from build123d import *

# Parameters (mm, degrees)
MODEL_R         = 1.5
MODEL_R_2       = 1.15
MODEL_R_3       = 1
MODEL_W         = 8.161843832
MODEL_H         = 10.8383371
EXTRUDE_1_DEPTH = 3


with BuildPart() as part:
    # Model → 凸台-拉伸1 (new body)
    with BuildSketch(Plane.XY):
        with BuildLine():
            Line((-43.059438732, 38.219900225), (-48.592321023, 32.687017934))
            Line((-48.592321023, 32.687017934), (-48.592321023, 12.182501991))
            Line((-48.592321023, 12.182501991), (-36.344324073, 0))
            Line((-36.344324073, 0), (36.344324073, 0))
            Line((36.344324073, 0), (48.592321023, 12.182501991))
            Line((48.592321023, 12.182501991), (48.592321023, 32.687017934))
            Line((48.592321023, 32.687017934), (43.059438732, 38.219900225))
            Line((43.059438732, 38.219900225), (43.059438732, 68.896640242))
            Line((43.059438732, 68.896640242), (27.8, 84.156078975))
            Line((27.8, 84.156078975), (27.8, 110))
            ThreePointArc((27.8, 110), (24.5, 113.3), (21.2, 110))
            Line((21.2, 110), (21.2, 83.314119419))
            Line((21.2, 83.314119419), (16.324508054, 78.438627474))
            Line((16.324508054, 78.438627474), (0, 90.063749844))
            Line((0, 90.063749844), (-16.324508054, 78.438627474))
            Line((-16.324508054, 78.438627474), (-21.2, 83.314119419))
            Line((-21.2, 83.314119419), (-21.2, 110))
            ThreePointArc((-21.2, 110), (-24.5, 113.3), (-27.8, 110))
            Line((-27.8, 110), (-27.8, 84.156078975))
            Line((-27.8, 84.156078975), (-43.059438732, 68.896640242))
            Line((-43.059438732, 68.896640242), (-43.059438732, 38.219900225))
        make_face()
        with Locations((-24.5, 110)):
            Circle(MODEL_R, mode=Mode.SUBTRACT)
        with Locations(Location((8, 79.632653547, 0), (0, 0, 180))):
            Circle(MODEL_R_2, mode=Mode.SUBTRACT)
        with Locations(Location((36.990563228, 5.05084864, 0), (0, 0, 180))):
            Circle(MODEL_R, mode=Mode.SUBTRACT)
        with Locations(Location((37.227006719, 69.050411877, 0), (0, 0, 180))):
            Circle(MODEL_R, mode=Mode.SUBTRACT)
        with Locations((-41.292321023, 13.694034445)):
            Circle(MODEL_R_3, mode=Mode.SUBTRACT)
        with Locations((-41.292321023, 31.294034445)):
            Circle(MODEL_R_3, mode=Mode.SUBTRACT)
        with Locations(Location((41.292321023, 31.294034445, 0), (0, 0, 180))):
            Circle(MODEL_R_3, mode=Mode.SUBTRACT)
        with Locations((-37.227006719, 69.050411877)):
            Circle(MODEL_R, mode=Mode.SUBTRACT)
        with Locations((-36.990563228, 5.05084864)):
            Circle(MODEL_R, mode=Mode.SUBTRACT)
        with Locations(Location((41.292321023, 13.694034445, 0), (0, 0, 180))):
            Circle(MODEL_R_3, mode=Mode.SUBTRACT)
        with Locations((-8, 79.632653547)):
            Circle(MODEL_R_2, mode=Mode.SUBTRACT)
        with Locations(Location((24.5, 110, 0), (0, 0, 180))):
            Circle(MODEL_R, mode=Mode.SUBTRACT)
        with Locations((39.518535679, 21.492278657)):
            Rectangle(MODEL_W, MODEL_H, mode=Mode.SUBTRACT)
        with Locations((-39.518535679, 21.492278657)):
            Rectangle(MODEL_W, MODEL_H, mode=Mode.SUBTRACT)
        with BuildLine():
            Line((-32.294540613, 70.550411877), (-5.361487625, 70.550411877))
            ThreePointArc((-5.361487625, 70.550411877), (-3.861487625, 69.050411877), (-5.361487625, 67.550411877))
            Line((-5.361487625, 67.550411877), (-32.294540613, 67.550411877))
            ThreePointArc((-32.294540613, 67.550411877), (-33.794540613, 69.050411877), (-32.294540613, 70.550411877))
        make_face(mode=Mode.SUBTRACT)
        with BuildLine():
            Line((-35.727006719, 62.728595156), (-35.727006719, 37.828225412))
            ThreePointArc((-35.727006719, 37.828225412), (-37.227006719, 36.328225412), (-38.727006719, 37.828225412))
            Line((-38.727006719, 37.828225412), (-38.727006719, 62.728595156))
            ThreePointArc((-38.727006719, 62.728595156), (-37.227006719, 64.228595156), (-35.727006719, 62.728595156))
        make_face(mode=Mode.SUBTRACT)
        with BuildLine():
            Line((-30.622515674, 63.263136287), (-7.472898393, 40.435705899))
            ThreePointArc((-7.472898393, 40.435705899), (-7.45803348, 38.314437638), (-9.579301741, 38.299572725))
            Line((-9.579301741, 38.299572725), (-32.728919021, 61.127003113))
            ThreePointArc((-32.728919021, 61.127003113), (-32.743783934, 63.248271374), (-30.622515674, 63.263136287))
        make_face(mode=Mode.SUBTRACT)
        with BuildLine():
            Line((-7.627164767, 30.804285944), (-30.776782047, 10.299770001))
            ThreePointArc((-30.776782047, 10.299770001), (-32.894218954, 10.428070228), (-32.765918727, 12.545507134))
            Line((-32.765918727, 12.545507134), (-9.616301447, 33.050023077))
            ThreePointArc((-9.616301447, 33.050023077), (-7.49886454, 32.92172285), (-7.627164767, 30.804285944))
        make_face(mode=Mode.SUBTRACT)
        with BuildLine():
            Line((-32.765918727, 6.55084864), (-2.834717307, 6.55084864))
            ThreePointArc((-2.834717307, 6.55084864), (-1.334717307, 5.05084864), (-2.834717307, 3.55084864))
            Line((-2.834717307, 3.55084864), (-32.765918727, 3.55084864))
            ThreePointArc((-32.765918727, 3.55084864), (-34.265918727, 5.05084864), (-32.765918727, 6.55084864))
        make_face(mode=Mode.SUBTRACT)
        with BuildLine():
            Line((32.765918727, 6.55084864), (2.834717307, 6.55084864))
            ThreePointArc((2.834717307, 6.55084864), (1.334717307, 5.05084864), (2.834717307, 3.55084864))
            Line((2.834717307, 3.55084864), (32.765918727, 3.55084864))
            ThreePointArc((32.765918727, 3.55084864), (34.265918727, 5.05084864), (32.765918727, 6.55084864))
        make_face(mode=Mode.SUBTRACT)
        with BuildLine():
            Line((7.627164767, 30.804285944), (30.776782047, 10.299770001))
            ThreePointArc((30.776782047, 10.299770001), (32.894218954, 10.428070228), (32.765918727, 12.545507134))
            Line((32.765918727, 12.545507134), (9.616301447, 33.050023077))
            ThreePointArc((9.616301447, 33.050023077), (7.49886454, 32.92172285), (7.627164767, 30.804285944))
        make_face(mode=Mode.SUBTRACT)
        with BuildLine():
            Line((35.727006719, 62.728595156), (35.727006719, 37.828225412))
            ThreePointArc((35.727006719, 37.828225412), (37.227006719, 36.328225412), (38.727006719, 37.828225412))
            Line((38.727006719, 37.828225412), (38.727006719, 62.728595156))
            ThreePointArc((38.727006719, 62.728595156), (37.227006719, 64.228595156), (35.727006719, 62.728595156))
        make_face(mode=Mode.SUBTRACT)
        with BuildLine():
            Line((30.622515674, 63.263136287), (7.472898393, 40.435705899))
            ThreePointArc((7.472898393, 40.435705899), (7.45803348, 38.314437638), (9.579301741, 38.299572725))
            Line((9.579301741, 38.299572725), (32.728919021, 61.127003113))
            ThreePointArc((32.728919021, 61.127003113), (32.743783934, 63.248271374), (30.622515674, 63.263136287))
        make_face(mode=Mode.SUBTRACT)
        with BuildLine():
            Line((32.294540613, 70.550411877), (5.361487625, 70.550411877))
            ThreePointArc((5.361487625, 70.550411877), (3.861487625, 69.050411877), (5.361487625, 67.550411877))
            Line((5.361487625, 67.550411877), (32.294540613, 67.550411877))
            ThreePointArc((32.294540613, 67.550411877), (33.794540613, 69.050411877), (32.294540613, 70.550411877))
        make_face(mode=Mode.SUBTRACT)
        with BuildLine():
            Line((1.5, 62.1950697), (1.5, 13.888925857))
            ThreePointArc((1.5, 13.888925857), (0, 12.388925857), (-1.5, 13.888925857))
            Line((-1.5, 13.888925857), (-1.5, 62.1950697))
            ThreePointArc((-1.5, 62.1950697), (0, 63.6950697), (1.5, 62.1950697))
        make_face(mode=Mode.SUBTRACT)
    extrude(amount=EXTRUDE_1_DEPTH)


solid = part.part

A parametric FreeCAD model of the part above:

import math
import FreeCAD as App
import Part
import Sketcher
from FreeCAD import Vector
Q = App.Units.Quantity

doc = App.newDocument("Part")
params = doc.addObject("Spreadsheet::Sheet", "Params")
for row, (alias, value) in enumerate([
    ("sketch1_diameter", "3 mm"),
    ("sketch1_diameter2", "2 mm"),
    ("sketch1_diameter3", "2 mm"),
    ("sketch1_diameter4", "3 mm"),
    ("sketch1_diameter5", "2 mm"),
    ("pad1_length", "3 mm"),
], start=1):
    params.set(f"A{row}", alias)
    params.set(f"B{row}", "=" + value)
    params.setAlias(f"B{row}", alias)

body = doc.addObject("PartDesign::Body", "Body")

sketch1 = body.newObject("Sketcher::SketchObject", "Sketch")
sketch1.AttachmentSupport = (doc.getObject("XY_Plane"), [""])
sketch1.MapMode = "FlatFace"
sketch1.addGeometry(Part.LineSegment(Vector(-43.059439, 38.2199, 0), Vector(-48.592321, 32.687018, 0)), False)
sketch1.addGeometry(Part.LineSegment(Vector(-48.592321, 32.687018, 0), Vector(-48.592321, 12.182502, 0)), False)
sketch1.addGeometry(Part.LineSegment(Vector(-48.592321, 12.182502, 0), Vector(-36.344324, 0, 0)), False)
sketch1.addGeometry(Part.LineSegment(Vector(-36.344324, 0, 0), Vector(36.344324, 0, 0)), False)
sketch1.addGeometry(Part.LineSegment(Vector(36.344324, 0, 0), Vector(48.592321, 12.182502, 0)), False)
sketch1.addGeometry(Part.LineSegment(Vector(48.592321, 12.182502, 0), Vector(48.592321, 32.687018, 0)), False)
sketch1.addGeometry(Part.LineSegment(Vector(48.592321, 32.687018, 0), Vector(43.059439, 38.2199, 0)), False)
sketch1.addGeometry(Part.LineSegment(Vector(43.059439, 38.2199, 0), Vector(43.059439, 68.89664, 0)), False)
sketch1.addGeometry(Part.LineSegment(Vector(43.059439, 68.89664, 0), Vector(27.8, 84.156079, 0)), False)
sketch1.addGeometry(Part.LineSegment(Vector(27.8, 84.156079, 0), Vector(27.8, 110, 0)), False)
sketch1.addGeometry(Part.ArcOfCircle(Part.Circle(Vector(24.5, 110, 0), Vector(0, 0, 1), 3.3), math.radians(0), math.radians(180)), False)
sketch1.addGeometry(Part.LineSegment(Vector(21.2, 110, 0), Vector(21.2, 83.314119, 0)), False)
sketch1.addGeometry(Part.LineSegment(Vector(21.2, 83.314119, 0), Vector(16.324508, 78.438627, 0)), False)
sketch1.addGeometry(Part.LineSegment(Vector(16.324508, 78.438627, 0), Vector(0, 90.06375, 0)), False)
sketch1.addGeometry(Part.LineSegment(Vector(0, 90.06375, 0), Vector(-16.324508, 78.438627, 0)), False)
sketch1.addGeometry(Part.LineSegment(Vector(-16.324508, 78.438627, 0), Vector(-21.2, 83.314119, 0)), False)
sketch1.addGeometry(Part.LineSegment(Vector(-21.2, 83.314119, 0), Vector(-21.2, 110, 0)), False)
sketch1.addGeometry(Part.ArcOfCircle(Part.Circle(Vector(-24.5, 110, 0), Vector(0, 0, 1), 3.3), math.radians(0), math.radians(180)), False)
sketch1.addGeometry(Part.LineSegment(Vector(-27.8, 110, 0), Vector(-27.8, 84.156079, 0)), False)
sketch1.addGeometry(Part.LineSegment(Vector(-27.8, 84.156079, 0), Vector(-43.059439, 68.89664, 0)), False)
sketch1.addGeometry(Part.LineSegment(Vector(-43.059439, 68.89664, 0), Vector(-43.059439, 38.2199, 0)), False)
sketch1.addGeometry(Part.Circle(Vector(-36.990563, 5.050849, 0), Vector(0, 0, 1), 1.5), False)
sketch1.addGeometry(Part.Circle(Vector(-41.292321, 13.694034, 0), Vector(0, 0, 1), 1), False)
sketch1.addGeometry(Part.LineSegment(Vector(-35.437614, 16.07311, 0), Vector(-43.599458, 16.07311, 0)), False)
sketch1.addGeometry(Part.LineSegment(Vector(-43.599458, 16.07311, 0), Vector(-43.599458, 26.911447, 0)), False)
sketch1.addGeometry(Part.LineSegment(Vector(-43.599458, 26.911447, 0), Vector(-35.437614, 26.911447, 0)), False)
sketch1.addGeometry(Part.LineSegment(Vector(-35.437614, 26.911447, 0), Vector(-35.437614, 16.07311, 0)), False)
sketch1.addGeometry(Part.ArcOfCircle(Part.Circle(Vector(-32.765919, 5.050849, 0), Vector(0, 0, 1), 1.5), math.radians(90), math.radians(270)), False)
sketch1.addGeometry(Part.LineSegment(Vector(-32.765919, 6.550849, 0), Vector(-2.834717, 6.550849, 0)), False)
sketch1.addGeometry(Part.ArcOfCircle(Part.Circle(Vector(-2.834717, 5.050849, 0), Vector(0, 0, 1), 1.5), math.radians(-90), math.radians(90)), False)
sketch1.addGeometry(Part.LineSegment(Vector(-2.834717, 3.550849, 0), Vector(-32.765919, 3.550849, 0)), False)
sketch1.addGeometry(Part.ArcOfCircle(Part.Circle(Vector(-8.621733, 31.927155, 0), Vector(0, 0, 1), 1.5), math.radians(-48.46744), math.radians(131.53256)), False)
sketch1.addGeometry(Part.LineSegment(Vector(-7.627165, 30.804286, 0), Vector(-30.776782, 10.29977, 0)), False)
sketch1.addGeometry(Part.ArcOfCircle(Part.Circle(Vector(-31.77135, 11.422639, 0), Vector(0, 0, 1), 1.5), math.radians(131.53256), math.radians(311.53256)), False)
sketch1.addGeometry(Part.LineSegment(Vector(-32.765919, 12.545507, 0), Vector(-9.616301, 33.050023, 0)), False)
sketch1.addGeometry(Part.Circle(Vector(-41.292321, 31.294034, 0), Vector(0, 0, 1), 1), False)
sketch1.addGeometry(Part.ArcOfCircle(Part.Circle(Vector(-37.227007, 62.728595, 0), Vector(0, 0, 1), 1.5), math.radians(0), math.radians(180)), False)
sketch1.addGeometry(Part.LineSegment(Vector(-35.727007, 62.728595, 0), Vector(-35.727007, 37.828225, 0)), False)
sketch1.addGeometry(Part.ArcOfCircle(Part.Circle(Vector(-37.227007, 37.828225, 0), Vector(0, 0, 1), 1.5), math.radians(180), math.radians(360)), False)
sketch1.addGeometry(Part.LineSegment(Vector(-38.727007, 37.828225, 0), Vector(-38.727007, 62.728595, 0)), False)
sketch1.addGeometry(Part.ArcOfCircle(Part.Circle(Vector(-31.675717, 62.19507, 0), Vector(0, 0, 1), 1.5), math.radians(45.401497), math.radians(225.401497)), False)
sketch1.addGeometry(Part.LineSegment(Vector(-30.622516, 63.263136, 0), Vector(-7.472898, 40.435706, 0)), False)
sketch1.addGeometry(Part.ArcOfCircle(Part.Circle(Vector(-8.5261, 39.367639, 0), Vector(0, 0, 1), 1.5), math.radians(-134.598503), math.radians(45.401497)), False)
sketch1.addGeometry(Part.LineSegment(Vector(-9.579302, 38.299573, 0), Vector(-32.728919, 61.127003, 0)), False)
sketch1.addGeometry(Part.LineSegment(Vector(2.834717, 6.550849, 0), Vector(32.765919, 6.550849, 0)), False)
sketch1.addGeometry(Part.ArcOfCircle(Part.Circle(Vector(32.765919, 5.050849, 0), Vector(0, 0, 1), 1.5), math.radians(-90), math.radians(90)), False)
sketch1.addGeometry(Part.LineSegment(Vector(32.765919, 3.550849, 0), Vector(2.834717, 3.550849, 0)), False)
sketch1.addGeometry(Part.ArcOfCircle(Part.Circle(Vector(2.834717, 5.050849, 0), Vector(0, 0, 1), 1.5), math.radians(90), math.radians(270)), False)
sketch1.addGeometry(Part.LineSegment(Vector(30.776782, 10.29977, 0), Vector(7.627165, 30.804286, 0)), False)
sketch1.addGeometry(Part.ArcOfCircle(Part.Circle(Vector(8.621733, 31.927155, 0), Vector(0, 0, 1), 1.5), math.radians(48.46744), math.radians(228.46744)), False)
sketch1.addGeometry(Part.LineSegment(Vector(9.616301, 33.050023, 0), Vector(32.765919, 12.545507, 0)), False)
sketch1.addGeometry(Part.ArcOfCircle(Part.Circle(Vector(31.77135, 11.422639, 0), Vector(0, 0, 1), 1.5), math.radians(-131.53256), math.radians(48.46744)), False)
sketch1.addGeometry(Part.Circle(Vector(36.990563, 5.050849, 0), Vector(0, 0, 1), 1.5), False)
sketch1.addGeometry(Part.Circle(Vector(41.292321, 13.694034, 0), Vector(0, 0, 1), 1), False)
sketch1.addGeometry(Part.LineSegment(Vector(43.599458, 16.07311, 0), Vector(35.437614, 16.07311, 0)), False)
sketch1.addGeometry(Part.LineSegment(Vector(35.437614, 16.07311, 0), Vector(35.437614, 26.911447, 0)), False)
sketch1.addGeometry(Part.LineSegment(Vector(35.437614, 26.911447, 0), Vector(43.599458, 26.911447, 0)), False)
sketch1.addGeometry(Part.LineSegment(Vector(43.599458, 26.911447, 0), Vector(43.599458, 16.07311, 0)), False)
sketch1.addGeometry(Part.ArcOfCircle(Part.Circle(Vector(0, 62.19507, 0), Vector(0, 0, 1), 1.5), math.radians(0), math.radians(180)), False)
sketch1.addGeometry(Part.LineSegment(Vector(1.5, 62.19507, 0), Vector(1.5, 13.888926, 0)), False)
sketch1.addGeometry(Part.ArcOfCircle(Part.Circle(Vector(0, 13.888926, 0), Vector(0, 0, 1), 1.5), math.radians(180), math.radians(360)), False)
sketch1.addGeometry(Part.LineSegment(Vector(-1.5, 13.888926, 0), Vector(-1.5, 62.19507, 0)), False)
sketch1.addGeometry(Part.LineSegment(Vector(7.472898, 40.435706, 0), Vector(30.622516, 63.263136, 0)), False)
sketch1.addGeometry(Part.ArcOfCircle(Part.Circle(Vector(31.675717, 62.19507, 0), Vector(0, 0, 1), 1.5), math.radians(-45.401497), math.radians(134.598503)), False)
sketch1.addGeometry(Part.LineSegment(Vector(32.728919, 61.127003, 0), Vector(9.579302, 38.299573, 0)), False)
sketch1.addGeometry(Part.ArcOfCircle(Part.Circle(Vector(8.5261, 39.367639, 0), Vector(0, 0, 1), 1.5), math.radians(134.598503), math.radians(314.598503)), False)
sketch1.addGeometry(Part.Circle(Vector(41.292321, 31.294034, 0), Vector(0, 0, 1), 1), False)
sketch1.addGeometry(Part.LineSegment(Vector(35.727007, 37.828225, 0), Vector(35.727007, 62.728595, 0)), False)
sketch1.addGeometry(Part.ArcOfCircle(Part.Circle(Vector(37.227007, 62.728595, 0), Vector(0, 0, 1), 1.5), math.radians(0), math.radians(180)), False)
sketch1.addGeometry(Part.LineSegment(Vector(38.727007, 62.728595, 0), Vector(38.727007, 37.828225, 0)), False)
sketch1.addGeometry(Part.ArcOfCircle(Part.Circle(Vector(37.227007, 37.828225, 0), Vector(0, 0, 1), 1.5), math.radians(180), math.radians(360)), False)
sketch1.addGeometry(Part.Circle(Vector(-37.227007, 69.050412, 0), Vector(0, 0, 1), 1.5), False)
sketch1.addGeometry(Part.ArcOfCircle(Part.Circle(Vector(-32.294541, 69.050412, 0), Vector(0, 0, 1), 1.5), math.radians(90), math.radians(270)), False)
sketch1.addGeometry(Part.LineSegment(Vector(-32.294541, 70.550412, 0), Vector(-5.361488, 70.550412, 0)), False)
sketch1.addGeometry(Part.ArcOfCircle(Part.Circle(Vector(-5.361488, 69.050412, 0), Vector(0, 0, 1), 1.5), math.radians(-90), math.radians(90)), False)
sketch1.addGeometry(Part.LineSegment(Vector(-5.361488, 67.550412, 0), Vector(-32.294541, 67.550412, 0)), False)
sketch1.addGeometry(Part.Circle(Vector(-8, 79.632654, 0), Vector(0, 0, 1), 1.15), False)
sketch1.addGeometry(Part.Circle(Vector(-24.5, 110, 0), Vector(0, 0, 1), 1.5), False)
sketch1.addGeometry(Part.LineSegment(Vector(5.361488, 70.550412, 0), Vector(32.294541, 70.550412, 0)), False)
sketch1.addGeometry(Part.ArcOfCircle(Part.Circle(Vector(32.294541, 69.050412, 0), Vector(0, 0, 1), 1.5), math.radians(-90), math.radians(90)), False)
sketch1.addGeometry(Part.LineSegment(Vector(32.294541, 67.550412, 0), Vector(5.361488, 67.550412, 0)), False)
sketch1.addGeometry(Part.ArcOfCircle(Part.Circle(Vector(5.361488, 69.050412, 0), Vector(0, 0, 1), 1.5), math.radians(90), math.radians(270)), False)
sketch1.addGeometry(Part.Circle(Vector(8, 79.632654, 0), Vector(0, 0, 1), 1.15), False)
sketch1.addGeometry(Part.Circle(Vector(37.227007, 69.050412, 0), Vector(0, 0, 1), 1.5), False)
sketch1.addGeometry(Part.Circle(Vector(24.5, 110, 0), Vector(0, 0, 1), 1.5), False)
sketch1.addConstraint(Sketcher.Constraint("Coincident", 0, 2, 1, 1))
sketch1.addConstraint(Sketcher.Constraint("Coincident", 1, 2, 2, 1))
sketch1.addConstraint(Sketcher.Constraint("Coincident", 2, 2, 3, 1))
sketch1.addConstraint(Sketcher.Constraint("Coincident", 3, 2, 4, 1))
sketch1.addConstraint(Sketcher.Constraint("Coincident", 4, 2, 5, 1))
sketch1.addConstraint(Sketcher.Constraint("Coincident", 5, 2, 6, 1))
sketch1.addConstraint(Sketcher.Constraint("Coincident", 6, 2, 7, 1))
sketch1.addConstraint(Sketcher.Constraint("Coincident", 7, 2, 8, 1))
sketch1.addConstraint(Sketcher.Constraint("Coincident", 8, 2, 9, 1))
sketch1.addConstraint(Sketcher.Constraint("Coincident", 9, 2, 10, 1))
sketch1.addConstraint(Sketcher.Constraint("Coincident", 10, 2, 11, 1))
sketch1.addConstraint(Sketcher.Constraint("Coincident", 11, 2, 12, 1))
sketch1.addConstraint(Sketcher.Constraint("Coincident", 12, 2, 13, 1))
sketch1.addConstraint(Sketcher.Constraint("Coincident", 13, 2, 14, 1))
sketch1.addConstraint(Sketcher.Constraint("Coincident", 14, 2, 15, 1))
sketch1.addConstraint(Sketcher.Constraint("Coincident", 15, 2, 16, 1))
sketch1.addConstraint(Sketcher.Constraint("Coincident", 16, 2, 17, 1))
sketch1.addConstraint(Sketcher.Constraint("Coincident", 17, 2, 18, 1))
sketch1.addConstraint(Sketcher.Constraint("Coincident", 18, 2, 19, 1))
sketch1.addConstraint(Sketcher.Constraint("Coincident", 19, 2, 20, 1))
sketch1.addConstraint(Sketcher.Constraint("Coincident", 20, 2, 0, 1))
sketch1.addConstraint(Sketcher.Constraint("Coincident", 23, 2, 24, 1))
sketch1.addConstraint(Sketcher.Constraint("Coincident", 24, 2, 25, 1))
sketch1.addConstraint(Sketcher.Constraint("Coincident", 25, 2, 26, 1))
sketch1.addConstraint(Sketcher.Constraint("Coincident", 26, 2, 23, 1))
sketch1.addConstraint(Sketcher.Constraint("Coincident", 27, 1, 28, 1))
sketch1.addConstraint(Sketcher.Constraint("Coincident", 28, 2, 29, 2))
sketch1.addConstraint(Sketcher.Constraint("Coincident", 29, 1, 30, 1))
sketch1.addConstraint(Sketcher.Constraint("Coincident", 30, 2, 27, 2))
sketch1.addConstraint(Sketcher.Constraint("Coincident", 31, 1, 32, 1))
sketch1.addConstraint(Sketcher.Constraint("Coincident", 32, 2, 33, 2))
sketch1.addConstraint(Sketcher.Constraint("Coincident", 33, 1, 34, 1))
sketch1.addConstraint(Sketcher.Constraint("Coincident", 34, 2, 31, 2))
sketch1.addConstraint(Sketcher.Constraint("Coincident", 36, 1, 37, 1))
sketch1.addConstraint(Sketcher.Constraint("Coincident", 37, 2, 38, 2))
sketch1.addConstraint(Sketcher.Constraint("Coincident", 38, 1, 39, 1))
sketch1.addConstraint(Sketcher.Constraint("Coincident", 39, 2, 36, 2))
sketch1.addConstraint(Sketcher.Constraint("Coincident", 40, 1, 41, 1))
sketch1.addConstraint(Sketcher.Constraint("Coincident", 41, 2, 42, 2))
sketch1.addConstraint(Sketcher.Constraint("Coincident", 42, 1, 43, 1))
sketch1.addConstraint(Sketcher.Constraint("Coincident", 43, 2, 40, 2))
sketch1.addConstraint(Sketcher.Constraint("Coincident", 44, 2, 45, 2))
sketch1.addConstraint(Sketcher.Constraint("Coincident", 45, 1, 46, 1))
sketch1.addConstraint(Sketcher.Constraint("Coincident", 46, 2, 47, 2))
sketch1.addConstraint(Sketcher.Constraint("Coincident", 47, 1, 44, 1))
sketch1.addConstraint(Sketcher.Constraint("Coincident", 48, 2, 49, 2))
sketch1.addConstraint(Sketcher.Constraint("Coincident", 49, 1, 50, 1))
sketch1.addConstraint(Sketcher.Constraint("Coincident", 50, 2, 51, 2))
sketch1.addConstraint(Sketcher.Constraint("Coincident", 51, 1, 48, 1))
sketch1.addConstraint(Sketcher.Constraint("Coincident", 54, 2, 55, 1))
sketch1.addConstraint(Sketcher.Constraint("Coincident", 55, 2, 56, 1))
sketch1.addConstraint(Sketcher.Constraint("Coincident", 56, 2, 57, 1))
sketch1.addConstraint(Sketcher.Constraint("Coincident", 57, 2, 54, 1))
sketch1.addConstraint(Sketcher.Constraint("Coincident", 58, 1, 59, 1))
sketch1.addConstraint(Sketcher.Constraint("Coincident", 59, 2, 60, 2))
sketch1.addConstraint(Sketcher.Constraint("Coincident", 60, 1, 61, 1))
sketch1.addConstraint(Sketcher.Constraint("Coincident", 61, 2, 58, 2))
sketch1.addConstraint(Sketcher.Constraint("Coincident", 62, 2, 63, 2))
sketch1.addConstraint(Sketcher.Constraint("Coincident", 63, 1, 64, 1))
sketch1.addConstraint(Sketcher.Constraint("Coincident", 64, 2, 65, 2))
sketch1.addConstraint(Sketcher.Constraint("Coincident", 65, 1, 62, 1))
sketch1.addConstraint(Sketcher.Constraint("Coincident", 67, 2, 68, 2))
sketch1.addConstraint(Sketcher.Constraint("Coincident", 68, 1, 69, 1))
sketch1.addConstraint(Sketcher.Constraint("Coincident", 69, 2, 70, 2))
sketch1.addConstraint(Sketcher.Constraint("Coincident", 70, 1, 67, 1))
sketch1.addConstraint(Sketcher.Constraint("Coincident", 72, 1, 73, 1))
sketch1.addConstraint(Sketcher.Constraint("Coincident", 73, 2, 74, 2))
sketch1.addConstraint(Sketcher.Constraint("Coincident", 74, 1, 75, 1))
sketch1.addConstraint(Sketcher.Constraint("Coincident", 75, 2, 72, 2))
sketch1.addConstraint(Sketcher.Constraint("Coincident", 78, 2, 79, 2))
sketch1.addConstraint(Sketcher.Constraint("Coincident", 79, 1, 80, 1))
sketch1.addConstraint(Sketcher.Constraint("Coincident", 80, 2, 81, 2))
sketch1.addConstraint(Sketcher.Constraint("Coincident", 81, 1, 78, 1))
sketch1.addConstraint(Sketcher.Constraint("Vertical", 1))
sketch1.addConstraint(Sketcher.Constraint("Horizontal", 3))
sketch1.addConstraint(Sketcher.Constraint("Vertical", 5))
sketch1.addConstraint(Sketcher.Constraint("Vertical", 7))
sketch1.addConstraint(Sketcher.Constraint("Vertical", 9))
sketch1.addConstraint(Sketcher.Constraint("Vertical", 11))
sketch1.addConstraint(Sketcher.Constraint("Vertical", 16))
sketch1.addConstraint(Sketcher.Constraint("Vertical", 18))
sketch1.addConstraint(Sketcher.Constraint("Vertical", 20))
sketch1.addConstraint(Sketcher.Constraint("Horizontal", 23))
sketch1.addConstraint(Sketcher.Constraint("Vertical", 24))
sketch1.addConstraint(Sketcher.Constraint("Horizontal", 25))
sketch1.addConstraint(Sketcher.Constraint("Vertical", 26))
sketch1.addConstraint(Sketcher.Constraint("Horizontal", 28))
sketch1.addConstraint(Sketcher.Constraint("Horizontal", 30))
sketch1.addConstraint(Sketcher.Constraint("Vertical", 37))
sketch1.addConstraint(Sketcher.Constraint("Vertical", 39))
sketch1.addConstraint(Sketcher.Constraint("Horizontal", 44))
sketch1.addConstraint(Sketcher.Constraint("Horizontal", 46))
sketch1.addConstraint(Sketcher.Constraint("Horizontal", 54))
sketch1.addConstraint(Sketcher.Constraint("Vertical", 55))
sketch1.addConstraint(Sketcher.Constraint("Horizontal", 56))
sketch1.addConstraint(Sketcher.Constraint("Vertical", 57))
sketch1.addConstraint(Sketcher.Constraint("Vertical", 59))
sketch1.addConstraint(Sketcher.Constraint("Vertical", 61))
sketch1.addConstraint(Sketcher.Constraint("Vertical", 67))
sketch1.addConstraint(Sketcher.Constraint("Vertical", 69))
sketch1.addConstraint(Sketcher.Constraint("Horizontal", 73))
sketch1.addConstraint(Sketcher.Constraint("Horizontal", 75))
sketch1.addConstraint(Sketcher.Constraint("Horizontal", 78))
sketch1.addConstraint(Sketcher.Constraint("Horizontal", 80))
sketch1.addConstraint(Sketcher.Constraint("Coincident", 77, 3, 17, 3))
sketch1.addConstraint(Sketcher.Constraint("Coincident", 84, 3, 10, 3))
sketch1.addConstraint(Sketcher.Constraint("PointOnObject", 58, 3, -2))
sketch1.addConstraint(Sketcher.Constraint("PointOnObject", 2, 2, -1))
sketch1.addConstraint(Sketcher.Constraint("PointOnObject", 13, 2, -2))
sketch1.addConstraint(Sketcher.Constraint("Diameter", 21, Q("3 mm")))
sketch1.addConstraint(Sketcher.Constraint("Diameter", 22, Q("2 mm")))
sketch1.addConstraint(Sketcher.Constraint("Diameter", 35, Q("2 mm")))
sketch1.addConstraint(Sketcher.Constraint("Diameter", 52, Q("3 mm")))
sketch1.addConstraint(Sketcher.Constraint("Diameter", 53, Q("2 mm")))
sketch1.addConstraint(Sketcher.Constraint("Diameter", 66, Q("2 mm")))
sketch1.addConstraint(Sketcher.Constraint("Diameter", 71, Q("3 mm")))
sketch1.addConstraint(Sketcher.Constraint("Diameter", 77, Q("3 mm")))
sketch1.addConstraint(Sketcher.Constraint("Diameter", 83, Q("3 mm")))
sketch1.addConstraint(Sketcher.Constraint("Diameter", 84, Q("3 mm")))
sketch1.addConstraint(Sketcher.Constraint("Diameter", 76, Q("2.3 mm")))
sketch1.addConstraint(Sketcher.Constraint("Diameter", 82, Q("2.3 mm")))
sketch1.addConstraint(Sketcher.Constraint("Radius", 10, Q("3.3 mm")))
sketch1.addConstraint(Sketcher.Constraint("Radius", 17, Q("3.3 mm")))
sketch1.addConstraint(Sketcher.Constraint("Radius", 27, Q("1.5 mm")))
sketch1.addConstraint(Sketcher.Constraint("Radius", 31, Q("1.5 mm")))
sketch1.addConstraint(Sketcher.Constraint("Radius", 33, Q("1.5 mm")))
sketch1.addConstraint(Sketcher.Constraint("Radius", 36, Q("1.5 mm")))
sketch1.addConstraint(Sketcher.Constraint("Radius", 40, Q("1.5 mm")))
sketch1.addConstraint(Sketcher.Constraint("Radius", 42, Q("1.5 mm")))
sketch1.addConstraint(Sketcher.Constraint("Radius", 45, Q("1.5 mm")))
sketch1.addConstraint(Sketcher.Constraint("Radius", 49, Q("1.5 mm")))
sketch1.addConstraint(Sketcher.Constraint("Radius", 51, Q("1.5 mm")))
sketch1.addConstraint(Sketcher.Constraint("Radius", 58, Q("1.5 mm")))
sketch1.addConstraint(Sketcher.Constraint("Radius", 63, Q("1.5 mm")))
sketch1.addConstraint(Sketcher.Constraint("Radius", 65, Q("1.5 mm")))
sketch1.addConstraint(Sketcher.Constraint("Radius", 68, Q("1.5 mm")))
sketch1.addConstraint(Sketcher.Constraint("Radius", 72, Q("1.5 mm")))
sketch1.addConstraint(Sketcher.Constraint("Radius", 79, Q("1.5 mm")))
sketch1.addConstraint(Sketcher.Constraint("DistanceY", -1, 1, 10, 3, Q("110 mm")))
sketch1.addConstraint(Sketcher.Constraint("DistanceY", -1, 1, 17, 3, Q("110 mm")))
sketch1.addConstraint(Sketcher.Constraint("DistanceX", 76, 3, -1, 1, Q("8 mm")))
sketch1.addConstraint(Sketcher.Constraint("DistanceX", -1, 1, 82, 3, Q("8 mm")))
sketch1.addConstraint(Sketcher.Constraint("DistanceY", -1, 1, 9, 2, Q("110 mm")))
sketch1.addConstraint(Sketcher.Constraint("DistanceY", -1, 1, 10, 2, Q("110 mm")))
sketch1.addConstraint(Sketcher.Constraint("DistanceY", -1, 1, 16, 2, Q("110 mm")))
sketch1.addConstraint(Sketcher.Constraint("DistanceY", -1, 1, 17, 2, Q("110 mm")))
sketch1.addConstraint(Sketcher.Constraint("DistanceX", -1, 1, 10, 3, Q("24.5 mm")))
sketch1.addConstraint(Sketcher.Constraint("DistanceX", 17, 3, -1, 1, Q("24.5 mm")))
sketch1.addConstraint(Sketcher.Constraint("DistanceX", 28, 1, 28, 2, Q("29.931201 mm")))
sketch1.addConstraint(Sketcher.Constraint("DistanceX", 30, 2, 30, 1, Q("29.931201 mm")))
sketch1.addConstraint(Sketcher.Constraint("DistanceX", 44, 1, 44, 2, Q("29.931201 mm")))
sketch1.addConstraint(Sketcher.Constraint("DistanceX", 46, 2, 46, 1, Q("29.931201 mm")))
sketch1.addConstraint(Sketcher.Constraint("DistanceX", 3, 1, 3, 2, Q("72.688648 mm")))
sketch1.addConstraint(Sketcher.Constraint("DistanceY", 7, 1, 7, 2, Q("30.67674 mm")))
sketch1.addConstraint(Sketcher.Constraint("DistanceY", 9, 1, 9, 2, Q("25.843921 mm")))
sketch1.addConstraint(Sketcher.Constraint("DistanceY", 11, 2, 11, 1, Q("26.685881 mm")))
sketch1.addConstraint(Sketcher.Constraint("DistanceY", 16, 1, 16, 2, Q("26.685881 mm")))
sketch1.addConstraint(Sketcher.Constraint("DistanceY", 18, 2, 18, 1, Q("25.843921 mm")))
sketch1.addConstraint(Sketcher.Constraint("DistanceY", 20, 2, 20, 1, Q("30.67674 mm")))
sketch1.addConstraint(Sketcher.Constraint("DistanceY", 37, 2, 37, 1, Q("24.90037 mm")))
sketch1.addConstraint(Sketcher.Constraint("DistanceY", 39, 1, 39, 2, Q("24.90037 mm")))
sketch1.addConstraint(Sketcher.Constraint("DistanceY", 67, 1, 67, 2, Q("24.90037 mm")))
sketch1.addConstraint(Sketcher.Constraint("DistanceY", 69, 2, 69, 1, Q("24.90037 mm")))
sketch1.addConstraint(Sketcher.Constraint("DistanceX", 42, 3, -1, 1, Q("8.5261 mm")))
sketch1.addConstraint(Sketcher.Constraint("DistanceX", -1, 1, 65, 3, Q("8.5261 mm")))
sketch1.addConstraint(Sketcher.Constraint("DistanceY", -1, 1, 1, 2, Q("12.182502 mm")))
sketch1.addConstraint(Sketcher.Constraint("DistanceY", -1, 1, 4, 2, Q("12.182502 mm")))
sketch1.addConstraint(Sketcher.Constraint("DistanceY", -1, 1, 6, 2, Q("38.2199 mm")))
sketch1.addConstraint(Sketcher.Constraint("DistanceY", -1, 1, 20, 2, Q("38.2199 mm")))
sketch1.addConstraint(Sketcher.Constraint("DistanceX", 34, 2, -1, 1, Q("9.616301 mm")))
sketch1.addConstraint(Sketcher.Constraint("DistanceX", 41, 2, -1, 1, Q("7.472898 mm")))
sketch1.addConstraint(Sketcher.Constraint("DistanceX", 42, 1, -1, 1, Q("9.579302 mm")))
sketch1.addConstraint(Sketcher.Constraint("DistanceX", -1, 1, 49, 1, Q("9.616301 mm")))
sketch1.addConstraint(Sketcher.Constraint("DistanceX", -1, 1, 64, 2, Q("9.579302 mm")))
sketch1.addConstraint(Sketcher.Constraint("DistanceX", -1, 1, 65, 1, Q("7.472898 mm")))
sketch1.addConstraint(Sketcher.Constraint("Distance", 41, Q("32.51148 mm")))
sketch1.addConstraint(Sketcher.Constraint("Distance", 43, Q("32.51148 mm")))
sketch1.addConstraint(Sketcher.Constraint("Distance", 62, Q("32.51148 mm")))
sketch1.addConstraint(Sketcher.Constraint("Distance", 64, Q("32.51148 mm")))
sketch1.addConstraint(Sketcher.Constraint("DistanceX", 23, 2, 23, 1, Q("8.161844 mm")))
sketch1.addConstraint(Sketcher.Constraint("DistanceX", 54, 2, 54, 1, Q("8.161844 mm")))
sketch1.addConstraint(Sketcher.Constraint("DistanceX", 73, 1, 73, 2, Q("26.933053 mm")))
sketch1.addConstraint(Sketcher.Constraint("DistanceX", 75, 2, 75, 1, Q("26.933053 mm")))
sketch1.addConstraint(Sketcher.Constraint("DistanceX", 78, 1, 78, 2, Q("26.933053 mm")))
sketch1.addConstraint(Sketcher.Constraint("DistanceX", 80, 2, 80, 1, Q("26.933053 mm")))
sketch1.addConstraint(Sketcher.Constraint("DistanceY", 1, 2, 1, 1, Q("20.504516 mm")))
sketch1.addConstraint(Sketcher.Constraint("DistanceY", 5, 1, 5, 2, Q("20.504516 mm")))
sketch1.addConstraint(Sketcher.Constraint("DistanceY", 24, 1, 24, 2, Q("10.838337 mm")))
sketch1.addConstraint(Sketcher.Constraint("DistanceY", 55, 1, 55, 2, Q("10.838337 mm")))
sketch1.addConstraint(Sketcher.Constraint("DistanceY", 59, 2, 59, 1, Q("48.306144 mm")))
sketch1.addConstraint(Sketcher.Constraint("DistanceY", 61, 1, 61, 2, Q("48.306144 mm")))
sketch1.addConstraint(Sketcher.Constraint("DistanceY", -1, 1, 21, 3, Q("5.050849 mm")))
sketch1.addConstraint(Sketcher.Constraint("DistanceX", 22, 3, -1, 1, Q("41.292321 mm")))
sketch1.addConstraint(Sketcher.Constraint("DistanceX", 27, 3, -1, 1, Q("32.765919 mm")))
sketch1.addConstraint(Sketcher.Constraint("DistanceY", -1, 1, 27, 3, Q("5.050849 mm")))
sketch1.addConstraint(Sketcher.Constraint("DistanceX", 33, 3, -1, 1, Q("31.77135 mm")))
sketch1.addConstraint(Sketcher.Constraint("DistanceY", -1, 1, 33, 3, Q("11.422639 mm")))
sketch1.addConstraint(Sketcher.Constraint("DistanceX", 35, 3, -1, 1, Q("41.292321 mm")))
sketch1.addConstraint(Sketcher.Constraint("DistanceY", -1, 1, 40, 3, Q("62.19507 mm")))
sketch1.addConstraint(Sketcher.Constraint("DistanceY", -1, 1, 42, 3, Q("39.367639 mm")))
sketch1.addConstraint(Sketcher.Constraint("DistanceX", -1, 1, 45, 3, Q("32.765919 mm")))
sketch1.addConstraint(Sketcher.Constraint("DistanceY", -1, 1, 45, 3, Q("5.050849 mm")))
sketch1.addConstraint(Sketcher.Constraint("DistanceX", -1, 1, 51, 3, Q("31.77135 mm")))
sketch1.addConstraint(Sketcher.Constraint("DistanceY", -1, 1, 51, 3, Q("11.422639 mm")))
sketch1.addConstraint(Sketcher.Constraint("DistanceY", -1, 1, 52, 3, Q("5.050849 mm")))
sketch1.addConstraint(Sketcher.Constraint("DistanceX", -1, 1, 53, 3, Q("41.292321 mm")))
sketch1.addConstraint(Sketcher.Constraint("DistanceY", -1, 1, 58, 3, Q("62.19507 mm")))
sketch1.addConstraint(Sketcher.Constraint("DistanceY", -1, 1, 63, 3, Q("62.19507 mm")))
sketch1.addConstraint(Sketcher.Constraint("DistanceY", -1, 1, 65, 3, Q("39.367639 mm")))
sketch1.addConstraint(Sketcher.Constraint("DistanceX", -1, 1, 66, 3, Q("41.292321 mm")))
sketch1.addConstraint(Sketcher.Constraint("DistanceY", -1, 1, 71, 3, Q("69.050412 mm")))
sketch1.addConstraint(Sketcher.Constraint("DistanceX", 72, 3, -1, 1, Q("32.294541 mm")))
sketch1.addConstraint(Sketcher.Constraint("DistanceY", -1, 1, 72, 3, Q("69.050412 mm")))
sketch1.addConstraint(Sketcher.Constraint("DistanceX", -1, 1, 79, 3, Q("32.294541 mm")))
sketch1.addConstraint(Sketcher.Constraint("DistanceY", -1, 1, 79, 3, Q("69.050412 mm")))
sketch1.addConstraint(Sketcher.Constraint("DistanceY", -1, 1, 83, 3, Q("69.050412 mm")))
sketch1.addConstraint(Sketcher.Constraint("DistanceX", 0, 2, -1, 1, Q("48.592321 mm")))
sketch1.addConstraint(Sketcher.Constraint("DistanceX", -1, 1, 4, 2, Q("48.592321 mm")))
sketch1.addConstraint(Sketcher.Constraint("DistanceX", -1, 1, 6, 2, Q("43.059439 mm")))
sketch1.addConstraint(Sketcher.Constraint("DistanceX", -1, 1, 12, 2, Q("16.324508 mm")))
sketch1.addConstraint(Sketcher.Constraint("DistanceY", -1, 1, 13, 2, Q("90.06375 mm")))
sketch1.addConstraint(Sketcher.Constraint("DistanceX", 14, 2, -1, 1, Q("16.324508 mm")))
sketch1.addConstraint(Sketcher.Constraint("DistanceX", 19, 2, -1, 1, Q("43.059439 mm")))
sketch1.addConstraint(Sketcher.Constraint("DistanceY", -1, 1, 23, 2, Q("16.07311 mm")))
sketch1.addConstraint(Sketcher.Constraint("DistanceX", 27, 1, -1, 1, Q("32.765919 mm")))
sketch1.addConstraint(Sketcher.Constraint("DistanceX", 30, 2, -1, 1, Q("32.765919 mm")))
sketch1.addConstraint(Sketcher.Constraint("DistanceY", -1, 1, 32, 2, Q("10.29977 mm")))
sketch1.addConstraint(Sketcher.Constraint("DistanceX", 33, 1, -1, 1, Q("32.765919 mm")))
sketch1.addConstraint(Sketcher.Constraint("DistanceX", 43, 2, -1, 1, Q("32.728919 mm")))
sketch1.addConstraint(Sketcher.Constraint("DistanceX", -1, 1, 44, 2, Q("32.765919 mm")))
sketch1.addConstraint(Sketcher.Constraint("DistanceX", -1, 1, 45, 1, Q("32.765919 mm")))
sketch1.addConstraint(Sketcher.Constraint("DistanceX", -1, 1, 50, 2, Q("32.765919 mm")))
sketch1.addConstraint(Sketcher.Constraint("DistanceY", -1, 1, 51, 1, Q("10.29977 mm")))
sketch1.addConstraint(Sketcher.Constraint("DistanceY", -1, 1, 54, 2, Q("16.07311 mm")))
sketch1.addConstraint(Sketcher.Constraint("DistanceY", -1, 1, 58, 1, Q("62.19507 mm")))
sketch1.addConstraint(Sketcher.Constraint("DistanceY", -1, 1, 61, 2, Q("62.19507 mm")))
sketch1.addConstraint(Sketcher.Constraint("DistanceX", -1, 1, 63, 1, Q("32.728919 mm")))
sketch1.addConstraint(Sketcher.Constraint("DistanceX", 72, 1, -1, 1, Q("32.294541 mm")))
sketch1.addConstraint(Sketcher.Constraint("DistanceX", 75, 2, -1, 1, Q("32.294541 mm")))
sketch1.addConstraint(Sketcher.Constraint("DistanceX", -1, 1, 78, 2, Q("32.294541 mm")))
sketch1.addConstraint(Sketcher.Constraint("DistanceX", -1, 1, 79, 1, Q("32.294541 mm")))
sketch1.addConstraint(Sketcher.Constraint("Distance", 2, Q("17.275034 mm")))
sketch1.addConstraint(Sketcher.Constraint("Distance", 12, Q("6.894987 mm")))
sketch1.addConstraint(Sketcher.Constraint("Distance", 14, Q("20.040784 mm")))
sketch1.addConstraint(Sketcher.Constraint("Distance", 32, Q("30.924747 mm")))
sketch1.addConstraint(Sketcher.Constraint("Distance", 34, Q("30.924747 mm")))
sketch1.addConstraint(Sketcher.Constraint("Distance", 48, Q("30.924747 mm")))
sketch1.addConstraint(Sketcher.Constraint("Distance", 50, Q("30.924747 mm")))
sketch1.addConstraint(Sketcher.Constraint("DistanceX", 21, 3, -1, 1, Q("36.990563 mm")))
sketch1.addConstraint(Sketcher.Constraint("DistanceY", -1, 1, 22, 3, Q("13.694034 mm")))
sketch1.addConstraint(Sketcher.Constraint("DistanceX", 29, 3, -1, 1, Q("2.834717 mm")))
sketch1.addConstraint(Sketcher.Constraint("DistanceX", 31, 3, -1, 1, Q("8.621733 mm")))
sketch1.addConstraint(Sketcher.Constraint("DistanceY", -1, 1, 35, 3, Q("31.294034 mm")))
sketch1.addConstraint(Sketcher.Constraint("DistanceX", 36, 3, -1, 1, Q("37.227007 mm")))
sketch1.addConstraint(Sketcher.Constraint("DistanceY", -1, 1, 36, 3, Q("62.728595 mm")))
sketch1.addConstraint(Sketcher.Constraint("DistanceY", -1, 1, 38, 3, Q("37.828225 mm")))
sketch1.addConstraint(Sketcher.Constraint("DistanceX", -1, 1, 47, 3, Q("2.834717 mm")))
sketch1.addConstraint(Sketcher.Constraint("DistanceX", -1, 1, 49, 3, Q("8.621733 mm")))
sketch1.addConstraint(Sketcher.Constraint("DistanceX", -1, 1, 52, 3, Q("36.990563 mm")))
sketch1.addConstraint(Sketcher.Constraint("DistanceY", -1, 1, 53, 3, Q("13.694034 mm")))
sketch1.addConstraint(Sketcher.Constraint("DistanceY", -1, 1, 60, 3, Q("13.888926 mm")))
sketch1.addConstraint(Sketcher.Constraint("DistanceY", -1, 1, 66, 3, Q("31.294034 mm")))
sketch1.addConstraint(Sketcher.Constraint("DistanceX", -1, 1, 68, 3, Q("37.227007 mm")))
sketch1.addConstraint(Sketcher.Constraint("DistanceY", -1, 1, 68, 3, Q("62.728595 mm")))
sketch1.addConstraint(Sketcher.Constraint("DistanceY", -1, 1, 70, 3, Q("37.828225 mm")))
sketch1.addConstraint(Sketcher.Constraint("DistanceX", 71, 3, -1, 1, Q("37.227007 mm")))
sketch1.addConstraint(Sketcher.Constraint("DistanceX", 74, 3, -1, 1, Q("5.361488 mm")))
sketch1.addConstraint(Sketcher.Constraint("DistanceY", -1, 1, 76, 3, Q("79.632654 mm")))
sketch1.addConstraint(Sketcher.Constraint("DistanceX", -1, 1, 81, 3, Q("5.361488 mm")))
sketch1.addConstraint(Sketcher.Constraint("DistanceY", -1, 1, 82, 3, Q("79.632654 mm")))
sketch1.addConstraint(Sketcher.Constraint("DistanceX", -1, 1, 83, 3, Q("37.227007 mm")))
sketch1.addConstraint(Sketcher.Constraint("DistanceX", 23, 2, -1, 1, Q("43.599458 mm")))
sketch1.addConstraint(Sketcher.Constraint("DistanceY", -1, 1, 36, 1, Q("62.728595 mm")))
sketch1.addConstraint(Sketcher.Constraint("DistanceY", -1, 1, 38, 1, Q("37.828225 mm")))
sketch1.addConstraint(Sketcher.Constraint("DistanceX", -1, 1, 54, 2, Q("35.437614 mm")))
sketch1.addConstraint(Sketcher.Constraint("DistanceY", -1, 1, 67, 2, Q("62.728595 mm")))
sketch1.addConstraint(Sketcher.Constraint("DistanceY", -1, 1, 68, 1, Q("62.728595 mm")))
sketch1.setExpression("Constraints[109]", "Params.sketch1_diameter")
sketch1.setExpression("Constraints[110]", "Params.sketch1_diameter2")
sketch1.setExpression("Constraints[111]", "Params.sketch1_diameter3")
sketch1.setExpression("Constraints[112]", "Params.sketch1_diameter4")
sketch1.setExpression("Constraints[113]", "Params.sketch1_diameter5")
pad1 = body.newObject("PartDesign::Pad", "Pad")
pad1.Profile = sketch1
pad1.setExpression("Length", "Params.pad1_length")

doc.recompute()
